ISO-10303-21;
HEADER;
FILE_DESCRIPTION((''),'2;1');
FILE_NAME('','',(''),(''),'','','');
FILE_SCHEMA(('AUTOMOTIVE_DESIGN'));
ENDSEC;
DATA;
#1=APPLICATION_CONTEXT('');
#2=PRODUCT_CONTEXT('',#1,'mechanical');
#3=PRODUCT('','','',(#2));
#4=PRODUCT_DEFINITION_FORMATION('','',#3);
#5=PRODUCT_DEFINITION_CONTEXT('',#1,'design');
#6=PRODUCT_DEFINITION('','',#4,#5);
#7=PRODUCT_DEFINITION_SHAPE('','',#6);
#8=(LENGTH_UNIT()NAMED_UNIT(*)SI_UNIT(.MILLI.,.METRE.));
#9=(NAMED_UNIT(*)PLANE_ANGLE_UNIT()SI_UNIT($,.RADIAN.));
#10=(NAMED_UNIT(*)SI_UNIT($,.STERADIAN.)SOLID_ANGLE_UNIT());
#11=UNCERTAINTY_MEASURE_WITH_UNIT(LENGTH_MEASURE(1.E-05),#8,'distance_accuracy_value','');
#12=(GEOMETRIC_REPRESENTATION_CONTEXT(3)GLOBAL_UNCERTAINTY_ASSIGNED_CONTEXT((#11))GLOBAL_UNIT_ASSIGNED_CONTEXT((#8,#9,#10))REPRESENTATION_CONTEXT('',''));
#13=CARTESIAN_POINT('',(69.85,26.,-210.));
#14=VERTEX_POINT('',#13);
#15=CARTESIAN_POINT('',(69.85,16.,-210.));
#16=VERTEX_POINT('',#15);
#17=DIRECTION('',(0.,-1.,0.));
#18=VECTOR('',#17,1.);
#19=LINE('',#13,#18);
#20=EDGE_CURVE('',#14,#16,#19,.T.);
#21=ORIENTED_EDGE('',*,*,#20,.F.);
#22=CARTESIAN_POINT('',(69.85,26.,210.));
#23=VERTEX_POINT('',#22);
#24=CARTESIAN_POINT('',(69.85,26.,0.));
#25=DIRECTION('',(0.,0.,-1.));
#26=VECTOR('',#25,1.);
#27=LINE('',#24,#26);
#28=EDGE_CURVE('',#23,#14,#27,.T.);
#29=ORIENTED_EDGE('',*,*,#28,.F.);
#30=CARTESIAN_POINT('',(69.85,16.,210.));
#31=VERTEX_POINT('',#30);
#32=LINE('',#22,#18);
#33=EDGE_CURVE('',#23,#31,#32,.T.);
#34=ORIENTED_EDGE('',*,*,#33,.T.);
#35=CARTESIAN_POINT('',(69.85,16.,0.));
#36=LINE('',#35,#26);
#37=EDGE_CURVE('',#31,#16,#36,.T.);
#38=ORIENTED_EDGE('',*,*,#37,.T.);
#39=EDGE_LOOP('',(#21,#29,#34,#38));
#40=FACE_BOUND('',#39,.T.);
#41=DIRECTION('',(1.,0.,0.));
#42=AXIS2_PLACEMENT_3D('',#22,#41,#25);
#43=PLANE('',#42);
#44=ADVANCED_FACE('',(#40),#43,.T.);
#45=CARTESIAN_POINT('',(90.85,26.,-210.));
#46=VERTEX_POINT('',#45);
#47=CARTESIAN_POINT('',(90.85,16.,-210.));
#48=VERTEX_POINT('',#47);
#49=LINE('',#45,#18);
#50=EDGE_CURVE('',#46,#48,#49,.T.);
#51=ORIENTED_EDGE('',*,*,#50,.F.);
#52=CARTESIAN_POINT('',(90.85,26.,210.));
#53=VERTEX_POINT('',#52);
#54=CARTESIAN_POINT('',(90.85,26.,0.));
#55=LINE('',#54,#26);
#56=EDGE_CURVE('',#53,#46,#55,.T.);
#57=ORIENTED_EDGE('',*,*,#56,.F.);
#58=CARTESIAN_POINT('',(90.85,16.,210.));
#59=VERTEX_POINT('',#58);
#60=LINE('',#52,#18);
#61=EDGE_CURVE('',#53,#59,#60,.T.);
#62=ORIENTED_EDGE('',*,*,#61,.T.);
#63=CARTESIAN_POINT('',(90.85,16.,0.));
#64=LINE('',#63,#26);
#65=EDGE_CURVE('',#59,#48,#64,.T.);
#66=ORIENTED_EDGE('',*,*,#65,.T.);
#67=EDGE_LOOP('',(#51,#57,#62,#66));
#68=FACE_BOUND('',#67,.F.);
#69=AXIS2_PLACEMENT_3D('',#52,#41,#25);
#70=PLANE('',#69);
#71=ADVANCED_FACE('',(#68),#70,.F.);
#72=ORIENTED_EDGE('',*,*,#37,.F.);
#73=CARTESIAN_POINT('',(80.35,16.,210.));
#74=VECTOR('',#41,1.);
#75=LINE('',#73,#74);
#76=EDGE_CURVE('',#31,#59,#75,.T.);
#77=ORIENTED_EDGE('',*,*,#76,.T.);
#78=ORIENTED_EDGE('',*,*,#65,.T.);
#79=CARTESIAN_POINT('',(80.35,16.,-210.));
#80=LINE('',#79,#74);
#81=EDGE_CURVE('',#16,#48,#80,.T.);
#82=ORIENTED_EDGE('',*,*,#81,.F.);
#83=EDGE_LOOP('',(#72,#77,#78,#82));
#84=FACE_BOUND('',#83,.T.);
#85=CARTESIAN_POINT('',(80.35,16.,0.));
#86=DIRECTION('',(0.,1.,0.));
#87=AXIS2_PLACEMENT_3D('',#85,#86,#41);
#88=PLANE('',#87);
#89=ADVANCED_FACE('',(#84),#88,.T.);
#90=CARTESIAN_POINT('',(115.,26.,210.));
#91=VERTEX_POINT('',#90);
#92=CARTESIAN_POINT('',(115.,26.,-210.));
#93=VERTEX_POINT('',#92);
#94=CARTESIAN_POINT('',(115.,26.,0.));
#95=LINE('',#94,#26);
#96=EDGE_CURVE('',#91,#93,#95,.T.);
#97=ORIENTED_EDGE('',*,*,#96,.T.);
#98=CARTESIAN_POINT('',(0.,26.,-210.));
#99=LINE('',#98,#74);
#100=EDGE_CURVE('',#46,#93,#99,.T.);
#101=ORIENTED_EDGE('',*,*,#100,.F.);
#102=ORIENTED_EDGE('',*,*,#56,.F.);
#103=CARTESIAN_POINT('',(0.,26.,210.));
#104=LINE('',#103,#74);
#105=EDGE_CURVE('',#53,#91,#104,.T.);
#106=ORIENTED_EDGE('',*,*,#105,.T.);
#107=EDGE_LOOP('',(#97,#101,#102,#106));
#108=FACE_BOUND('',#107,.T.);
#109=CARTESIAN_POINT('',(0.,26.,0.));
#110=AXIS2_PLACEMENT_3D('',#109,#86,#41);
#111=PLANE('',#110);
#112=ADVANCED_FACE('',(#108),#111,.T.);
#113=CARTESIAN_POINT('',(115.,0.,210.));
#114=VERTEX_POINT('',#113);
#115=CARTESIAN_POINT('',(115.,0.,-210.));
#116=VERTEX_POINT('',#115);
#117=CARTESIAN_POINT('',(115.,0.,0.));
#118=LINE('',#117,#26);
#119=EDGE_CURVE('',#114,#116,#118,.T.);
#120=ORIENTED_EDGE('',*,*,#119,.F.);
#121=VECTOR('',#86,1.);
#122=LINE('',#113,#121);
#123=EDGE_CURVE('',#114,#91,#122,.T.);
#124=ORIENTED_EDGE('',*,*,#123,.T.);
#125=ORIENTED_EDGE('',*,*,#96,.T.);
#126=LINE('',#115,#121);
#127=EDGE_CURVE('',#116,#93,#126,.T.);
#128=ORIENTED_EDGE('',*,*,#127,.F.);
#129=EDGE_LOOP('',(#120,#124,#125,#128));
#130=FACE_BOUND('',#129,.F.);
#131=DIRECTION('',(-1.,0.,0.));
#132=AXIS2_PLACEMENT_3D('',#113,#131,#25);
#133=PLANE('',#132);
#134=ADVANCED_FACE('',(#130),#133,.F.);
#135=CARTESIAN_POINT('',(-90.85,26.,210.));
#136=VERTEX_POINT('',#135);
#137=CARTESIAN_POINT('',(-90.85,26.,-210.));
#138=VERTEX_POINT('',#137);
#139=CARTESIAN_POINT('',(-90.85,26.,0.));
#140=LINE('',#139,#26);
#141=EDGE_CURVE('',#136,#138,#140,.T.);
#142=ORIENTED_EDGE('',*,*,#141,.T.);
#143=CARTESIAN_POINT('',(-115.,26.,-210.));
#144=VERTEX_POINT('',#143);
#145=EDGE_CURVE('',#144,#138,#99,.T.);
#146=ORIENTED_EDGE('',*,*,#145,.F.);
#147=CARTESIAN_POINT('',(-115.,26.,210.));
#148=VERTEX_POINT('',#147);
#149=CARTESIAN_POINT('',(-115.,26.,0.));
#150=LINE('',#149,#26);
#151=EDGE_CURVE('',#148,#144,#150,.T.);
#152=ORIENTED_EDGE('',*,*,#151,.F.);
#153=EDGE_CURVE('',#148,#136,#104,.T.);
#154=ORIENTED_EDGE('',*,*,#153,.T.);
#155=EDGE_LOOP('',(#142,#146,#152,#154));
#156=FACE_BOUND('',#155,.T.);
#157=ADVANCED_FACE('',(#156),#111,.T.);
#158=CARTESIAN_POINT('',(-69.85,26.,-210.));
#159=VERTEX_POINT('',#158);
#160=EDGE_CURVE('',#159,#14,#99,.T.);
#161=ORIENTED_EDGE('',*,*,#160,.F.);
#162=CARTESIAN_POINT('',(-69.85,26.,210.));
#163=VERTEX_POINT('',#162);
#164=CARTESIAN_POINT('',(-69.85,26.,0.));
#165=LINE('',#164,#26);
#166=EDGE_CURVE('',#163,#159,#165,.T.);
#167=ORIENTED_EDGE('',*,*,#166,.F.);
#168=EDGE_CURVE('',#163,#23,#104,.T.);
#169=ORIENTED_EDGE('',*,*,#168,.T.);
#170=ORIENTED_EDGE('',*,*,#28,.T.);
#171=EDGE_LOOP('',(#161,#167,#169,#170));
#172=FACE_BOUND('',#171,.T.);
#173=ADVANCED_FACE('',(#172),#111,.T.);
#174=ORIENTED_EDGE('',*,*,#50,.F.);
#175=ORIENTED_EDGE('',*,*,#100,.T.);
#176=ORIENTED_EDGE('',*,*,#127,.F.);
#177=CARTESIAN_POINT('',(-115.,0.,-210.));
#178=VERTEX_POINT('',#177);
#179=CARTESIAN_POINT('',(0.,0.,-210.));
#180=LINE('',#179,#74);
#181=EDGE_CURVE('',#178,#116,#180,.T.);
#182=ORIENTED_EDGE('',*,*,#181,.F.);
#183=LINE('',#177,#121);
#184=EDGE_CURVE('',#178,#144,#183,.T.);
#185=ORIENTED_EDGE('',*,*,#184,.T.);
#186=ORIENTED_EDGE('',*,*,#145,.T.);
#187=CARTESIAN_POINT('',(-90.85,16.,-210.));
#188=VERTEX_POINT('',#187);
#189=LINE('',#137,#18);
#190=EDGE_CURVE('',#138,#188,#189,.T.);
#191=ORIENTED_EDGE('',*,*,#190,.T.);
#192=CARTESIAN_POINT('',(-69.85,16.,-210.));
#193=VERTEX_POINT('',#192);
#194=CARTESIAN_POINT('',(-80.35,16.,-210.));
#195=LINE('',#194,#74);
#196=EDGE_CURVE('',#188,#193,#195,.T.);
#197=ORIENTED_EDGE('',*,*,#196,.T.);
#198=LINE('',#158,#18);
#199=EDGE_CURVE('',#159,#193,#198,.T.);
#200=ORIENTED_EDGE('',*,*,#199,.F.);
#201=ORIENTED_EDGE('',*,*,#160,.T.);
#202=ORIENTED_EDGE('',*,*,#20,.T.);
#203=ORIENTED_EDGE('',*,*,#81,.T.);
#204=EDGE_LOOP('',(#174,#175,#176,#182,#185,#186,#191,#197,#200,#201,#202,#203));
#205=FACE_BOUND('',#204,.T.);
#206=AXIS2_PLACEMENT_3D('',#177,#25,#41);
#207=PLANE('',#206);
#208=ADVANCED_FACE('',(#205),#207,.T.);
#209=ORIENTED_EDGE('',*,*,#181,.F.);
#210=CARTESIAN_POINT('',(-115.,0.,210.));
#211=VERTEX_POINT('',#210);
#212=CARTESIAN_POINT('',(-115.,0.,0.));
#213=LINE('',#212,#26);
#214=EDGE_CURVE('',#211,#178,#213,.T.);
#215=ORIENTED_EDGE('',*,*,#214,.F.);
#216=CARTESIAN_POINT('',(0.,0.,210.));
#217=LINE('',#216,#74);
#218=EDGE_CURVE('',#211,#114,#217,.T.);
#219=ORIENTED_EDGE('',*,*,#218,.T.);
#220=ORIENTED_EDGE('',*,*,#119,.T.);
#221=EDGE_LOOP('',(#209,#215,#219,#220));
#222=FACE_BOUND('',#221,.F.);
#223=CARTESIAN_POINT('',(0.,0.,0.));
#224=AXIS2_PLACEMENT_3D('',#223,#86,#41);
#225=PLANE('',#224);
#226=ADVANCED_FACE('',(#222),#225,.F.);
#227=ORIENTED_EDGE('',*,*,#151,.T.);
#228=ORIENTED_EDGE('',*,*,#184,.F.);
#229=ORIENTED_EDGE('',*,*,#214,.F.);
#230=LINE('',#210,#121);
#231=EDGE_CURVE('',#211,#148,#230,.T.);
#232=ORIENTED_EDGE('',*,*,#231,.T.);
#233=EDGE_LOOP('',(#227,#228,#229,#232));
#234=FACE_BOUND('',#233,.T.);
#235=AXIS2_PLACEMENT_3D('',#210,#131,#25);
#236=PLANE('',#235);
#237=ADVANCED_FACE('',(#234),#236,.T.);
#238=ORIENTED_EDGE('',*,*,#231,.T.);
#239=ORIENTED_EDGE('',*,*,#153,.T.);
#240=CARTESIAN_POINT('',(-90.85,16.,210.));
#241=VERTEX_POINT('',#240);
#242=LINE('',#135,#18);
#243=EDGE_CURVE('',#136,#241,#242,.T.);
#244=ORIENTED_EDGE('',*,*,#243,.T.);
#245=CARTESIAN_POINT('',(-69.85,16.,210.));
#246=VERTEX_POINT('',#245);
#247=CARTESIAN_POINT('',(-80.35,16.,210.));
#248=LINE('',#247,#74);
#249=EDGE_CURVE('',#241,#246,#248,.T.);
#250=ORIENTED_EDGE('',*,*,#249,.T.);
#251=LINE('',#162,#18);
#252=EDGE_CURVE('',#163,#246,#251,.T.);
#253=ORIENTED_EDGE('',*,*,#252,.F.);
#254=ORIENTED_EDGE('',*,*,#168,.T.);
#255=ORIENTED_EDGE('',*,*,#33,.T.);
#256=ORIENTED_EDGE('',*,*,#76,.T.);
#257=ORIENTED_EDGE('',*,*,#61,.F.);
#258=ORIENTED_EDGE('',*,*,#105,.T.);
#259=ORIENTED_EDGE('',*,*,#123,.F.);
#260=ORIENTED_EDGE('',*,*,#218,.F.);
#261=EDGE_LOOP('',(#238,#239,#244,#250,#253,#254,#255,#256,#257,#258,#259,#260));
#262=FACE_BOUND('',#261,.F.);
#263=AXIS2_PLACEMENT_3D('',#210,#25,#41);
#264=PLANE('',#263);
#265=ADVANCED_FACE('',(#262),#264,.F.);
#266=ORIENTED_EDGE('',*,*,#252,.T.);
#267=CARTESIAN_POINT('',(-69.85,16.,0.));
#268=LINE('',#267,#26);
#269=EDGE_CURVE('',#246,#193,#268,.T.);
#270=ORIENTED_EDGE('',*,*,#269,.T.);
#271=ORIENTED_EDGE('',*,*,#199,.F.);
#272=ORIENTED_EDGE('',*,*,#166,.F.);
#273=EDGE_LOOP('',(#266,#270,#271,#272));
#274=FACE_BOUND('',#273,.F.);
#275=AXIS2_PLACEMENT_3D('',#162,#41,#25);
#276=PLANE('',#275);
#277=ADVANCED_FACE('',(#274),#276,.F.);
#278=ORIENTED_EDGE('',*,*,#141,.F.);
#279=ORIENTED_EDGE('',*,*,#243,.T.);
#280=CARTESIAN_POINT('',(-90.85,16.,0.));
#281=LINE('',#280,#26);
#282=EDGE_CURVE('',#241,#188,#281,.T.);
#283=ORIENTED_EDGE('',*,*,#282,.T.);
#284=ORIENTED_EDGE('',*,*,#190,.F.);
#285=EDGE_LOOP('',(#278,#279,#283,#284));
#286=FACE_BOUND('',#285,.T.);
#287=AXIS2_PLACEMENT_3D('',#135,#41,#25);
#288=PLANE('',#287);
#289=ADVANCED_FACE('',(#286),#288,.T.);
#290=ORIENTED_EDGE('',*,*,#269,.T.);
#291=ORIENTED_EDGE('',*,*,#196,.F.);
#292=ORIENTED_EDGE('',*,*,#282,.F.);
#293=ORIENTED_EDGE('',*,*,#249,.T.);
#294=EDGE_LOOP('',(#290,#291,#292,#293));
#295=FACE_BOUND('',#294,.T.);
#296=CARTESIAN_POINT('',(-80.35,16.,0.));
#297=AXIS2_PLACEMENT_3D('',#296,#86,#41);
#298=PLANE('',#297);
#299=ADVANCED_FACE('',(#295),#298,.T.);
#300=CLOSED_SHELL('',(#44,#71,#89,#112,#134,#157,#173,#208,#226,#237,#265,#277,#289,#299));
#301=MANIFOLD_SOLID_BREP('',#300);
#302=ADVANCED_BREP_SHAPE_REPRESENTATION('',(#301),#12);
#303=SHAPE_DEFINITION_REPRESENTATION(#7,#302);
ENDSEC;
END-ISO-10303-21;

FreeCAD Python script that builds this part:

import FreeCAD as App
import Part
import Sketcher

V = App.Vector


def add_polygon(sketch, points):
    """Adds a closed chain of lines whose ends are joined by coincident constraints."""
    first, n = sketch.GeometryCount, len(points)
    for a, b in zip(points, points[1:] + points[:1]):
        sketch.addGeometry(Part.LineSegment(App.Vector(*a, 0), App.Vector(*b, 0)), False)
    for i in range(n):
        sketch.addConstraint(Sketcher.Constraint("Coincident", first + i, 2, first + (i + 1) % n, 1))

doc = App.newDocument("Part")
body = doc.addObject("PartDesign::Body", "Body")

# Sketch on XZ plane
sketch1 = body.newObject("Sketcher::SketchObject", "Sketch")
sketch1.AttachmentSupport = (doc.getObject("XZ_Plane"), [""])
sketch1.MapMode = "FlatFace"
add_polygon(sketch1, [(-115, -210), (-115, 210), (115, 210), (115, -210)])  # lines 0-3
sketch1.addConstraint([
    Sketcher.Constraint("Vertical", 0),
    Sketcher.Constraint("Horizontal", 1),
    Sketcher.Constraint("Vertical", 2),
    Sketcher.Constraint("Horizontal", 3),
    Sketcher.Constraint("Symmetric", 0, 2, 2, 2, -1, 1),
    Sketcher.Constraint("DistanceX", 1, 1, 1, 2, 230.0),
    Sketcher.Constraint("DistanceY", 0, 1, 0, 2, 420.0),
])
pad1 = body.newObject("PartDesign::Pad", "Pad")
pad1.Profile = sketch1
pad1.Length = 26
pad1.Reversed = True

# Sketch on XZ plane
sketch2 = body.newObject("Sketcher::SketchObject", "Sketch001")
sketch2.AttachmentSupport = (doc.getObject("XZ_Plane"), [""])
sketch2.MapMode = "FlatFace"
sketch2.AttachmentOffset = App.Placement(V(0, 0, -26), App.Rotation())
add_polygon(sketch2, [(-90.85, -210), (-90.85, 210), (-69.85, 210), (-69.85, -210)])  # lines 0-3
add_polygon(sketch2, [(69.85, -210), (69.85, 210), (90.85, 210), (90.85, -210)])  # lines 4-7
sketch2.addConstraint([
    Sketcher.Constraint("Vertical", 0),
    Sketcher.Constraint("Horizontal", 1),
    Sketcher.Constraint("Vertical", 2),
    Sketcher.Constraint("Horizontal", 3),
    Sketcher.Constraint("Vertical", 4),
    Sketcher.Constraint("Horizontal", 5),
    Sketcher.Constraint("Vertical", 6),
    Sketcher.Constraint("Horizontal", 7),
    Sketcher.Constraint("Symmetric", 2, 2, 4, 2, -1, 1),
    Sketcher.Constraint("Symmetric", 0, 2, 6, 2, -1, 1),
    Sketcher.Constraint("Horizontal", 1, 2, 4, 2),
    Sketcher.Constraint("DistanceX", 1, 1, 1, 2, 21.0),
    Sketcher.Constraint("DistanceY", 0, 1, 0, 2, 420.0),
    Sketcher.Constraint("DistanceX", 1, 2, 4, 2, 139.7),
])
pocket1 = body.newObject("PartDesign::Pocket", "Pocket")
pocket1.Profile = sketch2
pocket1.Length = 10
pocket1.Reversed = True

doc.recompute()
